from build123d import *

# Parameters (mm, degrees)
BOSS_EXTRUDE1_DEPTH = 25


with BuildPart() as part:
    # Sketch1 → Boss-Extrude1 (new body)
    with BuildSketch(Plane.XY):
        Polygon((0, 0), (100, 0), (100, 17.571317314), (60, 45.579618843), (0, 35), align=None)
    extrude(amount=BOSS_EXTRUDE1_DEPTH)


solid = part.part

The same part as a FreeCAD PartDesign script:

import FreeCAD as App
import Part
import Sketcher
Q = App.Units.Quantity


def add_polygon(sketch, points):
    """Adds a closed chain of lines whose ends are joined by coincident constraints."""
    first, n = sketch.GeometryCount, len(points)
    for a, b in zip(points, points[1:] + points[:1]):
        sketch.addGeometry(Part.LineSegment(App.Vector(*a, 0), App.Vector(*b, 0)), False)
    for i in range(n):
        sketch.addConstraint(Sketcher.Constraint("Coincident", first + i, 2, first + (i + 1) % n, 1))

doc = App.newDocument("Part")
body = doc.addObject("PartDesign::Body", "Body")

# Sketch on XY plane
sketch1 = body.newObject("Sketcher::SketchObject", "Sketch")
sketch1.AttachmentSupport = (doc.getObject("XY_Plane"), [""])
sketch1.MapMode = "FlatFace"
add_polygon(sketch1, [(0, 0), (100, 0), (100, 17.571317), (60, 45.579619), (0, 35)])  # lines 0-4
sketch1.addConstraint(Sketcher.Constraint("Horizontal", 0))
sketch1.addConstraint(Sketcher.Constraint("Vertical", 1))
sketch1.addConstraint(Sketcher.Constraint("Vertical", 4))
sketch1.addConstraint(Sketcher.Constraint("Coincident", 4, 2, -1, 1))
sketch1.addConstraint(Sketcher.Constraint("DistanceX", 0, 1, 0, 2, Q("100 mm")))
sketch1.addConstraint(Sketcher.Constraint("DistanceY", 4, 2, 4, 1, Q("35 mm")))
sketch1.addConstraint(Sketcher.Constraint("Angle", 2, Q("145 deg")))
sketch1.addConstraint(Sketcher.Constraint("Angle", 3, Q("-170 deg")))
sketch1.addConstraint(Sketcher.Constraint("DistanceX", -1, 1, 2, 2, Q("60 mm")))
pad1 = body.newObject("PartDesign::Pad", "Pad")
pad1.Profile = sketch1
pad1.Length = 25

doc.recompute()
